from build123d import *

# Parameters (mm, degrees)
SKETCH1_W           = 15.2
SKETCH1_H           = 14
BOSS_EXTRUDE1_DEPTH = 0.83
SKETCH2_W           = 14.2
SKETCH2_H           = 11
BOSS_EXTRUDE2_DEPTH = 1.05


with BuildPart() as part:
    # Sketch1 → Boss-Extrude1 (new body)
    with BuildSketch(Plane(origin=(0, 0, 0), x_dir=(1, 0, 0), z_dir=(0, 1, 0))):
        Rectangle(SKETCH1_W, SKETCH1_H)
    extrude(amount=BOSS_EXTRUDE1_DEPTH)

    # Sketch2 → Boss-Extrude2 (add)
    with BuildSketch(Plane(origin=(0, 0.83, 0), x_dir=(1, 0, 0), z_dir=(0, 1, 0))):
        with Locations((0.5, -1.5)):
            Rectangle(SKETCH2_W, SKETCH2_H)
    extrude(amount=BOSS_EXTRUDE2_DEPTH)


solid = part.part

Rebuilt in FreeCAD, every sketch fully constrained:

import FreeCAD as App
import Part
import Sketcher
from FreeCAD import Vector

doc = App.newDocument("Part")
body = doc.addObject("PartDesign::Body", "Body")

# Sketch on XZ plane
sketch1 = body.newObject("Sketcher::SketchObject", "Sketch")
sketch1.AttachmentSupport = (doc.getObject("XZ_Plane"), [""])
sketch1.MapMode = "FlatFace"
sketch1.addGeometry([
    Part.LineSegment(Vector(-8, -7, 0), Vector(-8, 7, 0)),
    Part.LineSegment(Vector(-8, 7, 0), Vector(8, 7, 0)),
    Part.LineSegment(Vector(8, 7, 0), Vector(8, -7, 0)),
    Part.LineSegment(Vector(8, -7, 0), Vector(-8, -7, 0)),
], False)
sketch1.addConstraint([
    Sketcher.Constraint("Coincident", 0, 2, 1, 1),
    Sketcher.Constraint("Coincident", 1, 2, 2, 1),
    Sketcher.Constraint("Coincident", 2, 2, 3, 1),
    Sketcher.Constraint("Coincident", 3, 2, 0, 1),
    Sketcher.Constraint("Vertical", 0),
    Sketcher.Constraint("Horizontal", 1),
    Sketcher.Constraint("Vertical", 2),
    Sketcher.Constraint("Horizontal", 3),
    Sketcher.Constraint("Symmetric", 0, 2, 2, 2, -1, 1),
    Sketcher.Constraint("DistanceY", 0, 1, 0, 2, 14.0),
    Sketcher.Constraint("DistanceX", 1, 1, 1, 2, 15.2),
])
pad1 = body.newObject("PartDesign::Pad", "Pad")
pad1.Profile = sketch1
pad1.Length = 0.83
pad1.Reversed = True

# Sketch on XZ plane
sketch2 = body.newObject("Sketcher::SketchObject", "Sketch001")
sketch2.AttachmentSupport = (doc.getObject("XZ_Plane"), [""])
sketch2.MapMode = "FlatFace"
sketch2.AttachmentOffset = App.Placement(Vector(0, 0, -0.83), App.Rotation())
sketch2.addGeometry([
    Part.LineSegment(Vector(-7, -4, 0), Vector(-7, 7, 0)),
    Part.LineSegment(Vector(-7, 7, 0), Vector(8, 7, 0)),
    Part.LineSegment(Vector(8, 7, 0), Vector(8, -4, 0)),
    Part.LineSegment(Vector(8, -4, 0), Vector(-7, -4, 0)),
], False)
sketch2.addConstraint([
    Sketcher.Constraint("Coincident", 0, 2, 1, 1),
    Sketcher.Constraint("Coincident", 1, 2, 2, 1),
    Sketcher.Constraint("Coincident", 2, 2, 3, 1),
    Sketcher.Constraint("Coincident", 3, 2, 0, 1),
    Sketcher.Constraint("Vertical", 0),
    Sketcher.Constraint("Horizontal", 1),
    Sketcher.Constraint("Vertical", 2),
    Sketcher.Constraint("Horizontal", 3),
    Sketcher.Constraint("DistanceY", 0, 1, 0, 2, 11.0),
    Sketcher.Constraint("DistanceX", 1, 1, 1, 2, 14.2),
    Sketcher.Constraint("DistanceY", -1, 1, 0, 2, 7.0),
    Sketcher.Constraint("DistanceX", 0, 2, -1, 1, 6.6),
])
pad2 = body.newObject("PartDesign::Pad", "Pad001")
pad2.Profile = sketch2
pad2.Length = 1.05
pad2.Reversed = True

doc.recompute()
